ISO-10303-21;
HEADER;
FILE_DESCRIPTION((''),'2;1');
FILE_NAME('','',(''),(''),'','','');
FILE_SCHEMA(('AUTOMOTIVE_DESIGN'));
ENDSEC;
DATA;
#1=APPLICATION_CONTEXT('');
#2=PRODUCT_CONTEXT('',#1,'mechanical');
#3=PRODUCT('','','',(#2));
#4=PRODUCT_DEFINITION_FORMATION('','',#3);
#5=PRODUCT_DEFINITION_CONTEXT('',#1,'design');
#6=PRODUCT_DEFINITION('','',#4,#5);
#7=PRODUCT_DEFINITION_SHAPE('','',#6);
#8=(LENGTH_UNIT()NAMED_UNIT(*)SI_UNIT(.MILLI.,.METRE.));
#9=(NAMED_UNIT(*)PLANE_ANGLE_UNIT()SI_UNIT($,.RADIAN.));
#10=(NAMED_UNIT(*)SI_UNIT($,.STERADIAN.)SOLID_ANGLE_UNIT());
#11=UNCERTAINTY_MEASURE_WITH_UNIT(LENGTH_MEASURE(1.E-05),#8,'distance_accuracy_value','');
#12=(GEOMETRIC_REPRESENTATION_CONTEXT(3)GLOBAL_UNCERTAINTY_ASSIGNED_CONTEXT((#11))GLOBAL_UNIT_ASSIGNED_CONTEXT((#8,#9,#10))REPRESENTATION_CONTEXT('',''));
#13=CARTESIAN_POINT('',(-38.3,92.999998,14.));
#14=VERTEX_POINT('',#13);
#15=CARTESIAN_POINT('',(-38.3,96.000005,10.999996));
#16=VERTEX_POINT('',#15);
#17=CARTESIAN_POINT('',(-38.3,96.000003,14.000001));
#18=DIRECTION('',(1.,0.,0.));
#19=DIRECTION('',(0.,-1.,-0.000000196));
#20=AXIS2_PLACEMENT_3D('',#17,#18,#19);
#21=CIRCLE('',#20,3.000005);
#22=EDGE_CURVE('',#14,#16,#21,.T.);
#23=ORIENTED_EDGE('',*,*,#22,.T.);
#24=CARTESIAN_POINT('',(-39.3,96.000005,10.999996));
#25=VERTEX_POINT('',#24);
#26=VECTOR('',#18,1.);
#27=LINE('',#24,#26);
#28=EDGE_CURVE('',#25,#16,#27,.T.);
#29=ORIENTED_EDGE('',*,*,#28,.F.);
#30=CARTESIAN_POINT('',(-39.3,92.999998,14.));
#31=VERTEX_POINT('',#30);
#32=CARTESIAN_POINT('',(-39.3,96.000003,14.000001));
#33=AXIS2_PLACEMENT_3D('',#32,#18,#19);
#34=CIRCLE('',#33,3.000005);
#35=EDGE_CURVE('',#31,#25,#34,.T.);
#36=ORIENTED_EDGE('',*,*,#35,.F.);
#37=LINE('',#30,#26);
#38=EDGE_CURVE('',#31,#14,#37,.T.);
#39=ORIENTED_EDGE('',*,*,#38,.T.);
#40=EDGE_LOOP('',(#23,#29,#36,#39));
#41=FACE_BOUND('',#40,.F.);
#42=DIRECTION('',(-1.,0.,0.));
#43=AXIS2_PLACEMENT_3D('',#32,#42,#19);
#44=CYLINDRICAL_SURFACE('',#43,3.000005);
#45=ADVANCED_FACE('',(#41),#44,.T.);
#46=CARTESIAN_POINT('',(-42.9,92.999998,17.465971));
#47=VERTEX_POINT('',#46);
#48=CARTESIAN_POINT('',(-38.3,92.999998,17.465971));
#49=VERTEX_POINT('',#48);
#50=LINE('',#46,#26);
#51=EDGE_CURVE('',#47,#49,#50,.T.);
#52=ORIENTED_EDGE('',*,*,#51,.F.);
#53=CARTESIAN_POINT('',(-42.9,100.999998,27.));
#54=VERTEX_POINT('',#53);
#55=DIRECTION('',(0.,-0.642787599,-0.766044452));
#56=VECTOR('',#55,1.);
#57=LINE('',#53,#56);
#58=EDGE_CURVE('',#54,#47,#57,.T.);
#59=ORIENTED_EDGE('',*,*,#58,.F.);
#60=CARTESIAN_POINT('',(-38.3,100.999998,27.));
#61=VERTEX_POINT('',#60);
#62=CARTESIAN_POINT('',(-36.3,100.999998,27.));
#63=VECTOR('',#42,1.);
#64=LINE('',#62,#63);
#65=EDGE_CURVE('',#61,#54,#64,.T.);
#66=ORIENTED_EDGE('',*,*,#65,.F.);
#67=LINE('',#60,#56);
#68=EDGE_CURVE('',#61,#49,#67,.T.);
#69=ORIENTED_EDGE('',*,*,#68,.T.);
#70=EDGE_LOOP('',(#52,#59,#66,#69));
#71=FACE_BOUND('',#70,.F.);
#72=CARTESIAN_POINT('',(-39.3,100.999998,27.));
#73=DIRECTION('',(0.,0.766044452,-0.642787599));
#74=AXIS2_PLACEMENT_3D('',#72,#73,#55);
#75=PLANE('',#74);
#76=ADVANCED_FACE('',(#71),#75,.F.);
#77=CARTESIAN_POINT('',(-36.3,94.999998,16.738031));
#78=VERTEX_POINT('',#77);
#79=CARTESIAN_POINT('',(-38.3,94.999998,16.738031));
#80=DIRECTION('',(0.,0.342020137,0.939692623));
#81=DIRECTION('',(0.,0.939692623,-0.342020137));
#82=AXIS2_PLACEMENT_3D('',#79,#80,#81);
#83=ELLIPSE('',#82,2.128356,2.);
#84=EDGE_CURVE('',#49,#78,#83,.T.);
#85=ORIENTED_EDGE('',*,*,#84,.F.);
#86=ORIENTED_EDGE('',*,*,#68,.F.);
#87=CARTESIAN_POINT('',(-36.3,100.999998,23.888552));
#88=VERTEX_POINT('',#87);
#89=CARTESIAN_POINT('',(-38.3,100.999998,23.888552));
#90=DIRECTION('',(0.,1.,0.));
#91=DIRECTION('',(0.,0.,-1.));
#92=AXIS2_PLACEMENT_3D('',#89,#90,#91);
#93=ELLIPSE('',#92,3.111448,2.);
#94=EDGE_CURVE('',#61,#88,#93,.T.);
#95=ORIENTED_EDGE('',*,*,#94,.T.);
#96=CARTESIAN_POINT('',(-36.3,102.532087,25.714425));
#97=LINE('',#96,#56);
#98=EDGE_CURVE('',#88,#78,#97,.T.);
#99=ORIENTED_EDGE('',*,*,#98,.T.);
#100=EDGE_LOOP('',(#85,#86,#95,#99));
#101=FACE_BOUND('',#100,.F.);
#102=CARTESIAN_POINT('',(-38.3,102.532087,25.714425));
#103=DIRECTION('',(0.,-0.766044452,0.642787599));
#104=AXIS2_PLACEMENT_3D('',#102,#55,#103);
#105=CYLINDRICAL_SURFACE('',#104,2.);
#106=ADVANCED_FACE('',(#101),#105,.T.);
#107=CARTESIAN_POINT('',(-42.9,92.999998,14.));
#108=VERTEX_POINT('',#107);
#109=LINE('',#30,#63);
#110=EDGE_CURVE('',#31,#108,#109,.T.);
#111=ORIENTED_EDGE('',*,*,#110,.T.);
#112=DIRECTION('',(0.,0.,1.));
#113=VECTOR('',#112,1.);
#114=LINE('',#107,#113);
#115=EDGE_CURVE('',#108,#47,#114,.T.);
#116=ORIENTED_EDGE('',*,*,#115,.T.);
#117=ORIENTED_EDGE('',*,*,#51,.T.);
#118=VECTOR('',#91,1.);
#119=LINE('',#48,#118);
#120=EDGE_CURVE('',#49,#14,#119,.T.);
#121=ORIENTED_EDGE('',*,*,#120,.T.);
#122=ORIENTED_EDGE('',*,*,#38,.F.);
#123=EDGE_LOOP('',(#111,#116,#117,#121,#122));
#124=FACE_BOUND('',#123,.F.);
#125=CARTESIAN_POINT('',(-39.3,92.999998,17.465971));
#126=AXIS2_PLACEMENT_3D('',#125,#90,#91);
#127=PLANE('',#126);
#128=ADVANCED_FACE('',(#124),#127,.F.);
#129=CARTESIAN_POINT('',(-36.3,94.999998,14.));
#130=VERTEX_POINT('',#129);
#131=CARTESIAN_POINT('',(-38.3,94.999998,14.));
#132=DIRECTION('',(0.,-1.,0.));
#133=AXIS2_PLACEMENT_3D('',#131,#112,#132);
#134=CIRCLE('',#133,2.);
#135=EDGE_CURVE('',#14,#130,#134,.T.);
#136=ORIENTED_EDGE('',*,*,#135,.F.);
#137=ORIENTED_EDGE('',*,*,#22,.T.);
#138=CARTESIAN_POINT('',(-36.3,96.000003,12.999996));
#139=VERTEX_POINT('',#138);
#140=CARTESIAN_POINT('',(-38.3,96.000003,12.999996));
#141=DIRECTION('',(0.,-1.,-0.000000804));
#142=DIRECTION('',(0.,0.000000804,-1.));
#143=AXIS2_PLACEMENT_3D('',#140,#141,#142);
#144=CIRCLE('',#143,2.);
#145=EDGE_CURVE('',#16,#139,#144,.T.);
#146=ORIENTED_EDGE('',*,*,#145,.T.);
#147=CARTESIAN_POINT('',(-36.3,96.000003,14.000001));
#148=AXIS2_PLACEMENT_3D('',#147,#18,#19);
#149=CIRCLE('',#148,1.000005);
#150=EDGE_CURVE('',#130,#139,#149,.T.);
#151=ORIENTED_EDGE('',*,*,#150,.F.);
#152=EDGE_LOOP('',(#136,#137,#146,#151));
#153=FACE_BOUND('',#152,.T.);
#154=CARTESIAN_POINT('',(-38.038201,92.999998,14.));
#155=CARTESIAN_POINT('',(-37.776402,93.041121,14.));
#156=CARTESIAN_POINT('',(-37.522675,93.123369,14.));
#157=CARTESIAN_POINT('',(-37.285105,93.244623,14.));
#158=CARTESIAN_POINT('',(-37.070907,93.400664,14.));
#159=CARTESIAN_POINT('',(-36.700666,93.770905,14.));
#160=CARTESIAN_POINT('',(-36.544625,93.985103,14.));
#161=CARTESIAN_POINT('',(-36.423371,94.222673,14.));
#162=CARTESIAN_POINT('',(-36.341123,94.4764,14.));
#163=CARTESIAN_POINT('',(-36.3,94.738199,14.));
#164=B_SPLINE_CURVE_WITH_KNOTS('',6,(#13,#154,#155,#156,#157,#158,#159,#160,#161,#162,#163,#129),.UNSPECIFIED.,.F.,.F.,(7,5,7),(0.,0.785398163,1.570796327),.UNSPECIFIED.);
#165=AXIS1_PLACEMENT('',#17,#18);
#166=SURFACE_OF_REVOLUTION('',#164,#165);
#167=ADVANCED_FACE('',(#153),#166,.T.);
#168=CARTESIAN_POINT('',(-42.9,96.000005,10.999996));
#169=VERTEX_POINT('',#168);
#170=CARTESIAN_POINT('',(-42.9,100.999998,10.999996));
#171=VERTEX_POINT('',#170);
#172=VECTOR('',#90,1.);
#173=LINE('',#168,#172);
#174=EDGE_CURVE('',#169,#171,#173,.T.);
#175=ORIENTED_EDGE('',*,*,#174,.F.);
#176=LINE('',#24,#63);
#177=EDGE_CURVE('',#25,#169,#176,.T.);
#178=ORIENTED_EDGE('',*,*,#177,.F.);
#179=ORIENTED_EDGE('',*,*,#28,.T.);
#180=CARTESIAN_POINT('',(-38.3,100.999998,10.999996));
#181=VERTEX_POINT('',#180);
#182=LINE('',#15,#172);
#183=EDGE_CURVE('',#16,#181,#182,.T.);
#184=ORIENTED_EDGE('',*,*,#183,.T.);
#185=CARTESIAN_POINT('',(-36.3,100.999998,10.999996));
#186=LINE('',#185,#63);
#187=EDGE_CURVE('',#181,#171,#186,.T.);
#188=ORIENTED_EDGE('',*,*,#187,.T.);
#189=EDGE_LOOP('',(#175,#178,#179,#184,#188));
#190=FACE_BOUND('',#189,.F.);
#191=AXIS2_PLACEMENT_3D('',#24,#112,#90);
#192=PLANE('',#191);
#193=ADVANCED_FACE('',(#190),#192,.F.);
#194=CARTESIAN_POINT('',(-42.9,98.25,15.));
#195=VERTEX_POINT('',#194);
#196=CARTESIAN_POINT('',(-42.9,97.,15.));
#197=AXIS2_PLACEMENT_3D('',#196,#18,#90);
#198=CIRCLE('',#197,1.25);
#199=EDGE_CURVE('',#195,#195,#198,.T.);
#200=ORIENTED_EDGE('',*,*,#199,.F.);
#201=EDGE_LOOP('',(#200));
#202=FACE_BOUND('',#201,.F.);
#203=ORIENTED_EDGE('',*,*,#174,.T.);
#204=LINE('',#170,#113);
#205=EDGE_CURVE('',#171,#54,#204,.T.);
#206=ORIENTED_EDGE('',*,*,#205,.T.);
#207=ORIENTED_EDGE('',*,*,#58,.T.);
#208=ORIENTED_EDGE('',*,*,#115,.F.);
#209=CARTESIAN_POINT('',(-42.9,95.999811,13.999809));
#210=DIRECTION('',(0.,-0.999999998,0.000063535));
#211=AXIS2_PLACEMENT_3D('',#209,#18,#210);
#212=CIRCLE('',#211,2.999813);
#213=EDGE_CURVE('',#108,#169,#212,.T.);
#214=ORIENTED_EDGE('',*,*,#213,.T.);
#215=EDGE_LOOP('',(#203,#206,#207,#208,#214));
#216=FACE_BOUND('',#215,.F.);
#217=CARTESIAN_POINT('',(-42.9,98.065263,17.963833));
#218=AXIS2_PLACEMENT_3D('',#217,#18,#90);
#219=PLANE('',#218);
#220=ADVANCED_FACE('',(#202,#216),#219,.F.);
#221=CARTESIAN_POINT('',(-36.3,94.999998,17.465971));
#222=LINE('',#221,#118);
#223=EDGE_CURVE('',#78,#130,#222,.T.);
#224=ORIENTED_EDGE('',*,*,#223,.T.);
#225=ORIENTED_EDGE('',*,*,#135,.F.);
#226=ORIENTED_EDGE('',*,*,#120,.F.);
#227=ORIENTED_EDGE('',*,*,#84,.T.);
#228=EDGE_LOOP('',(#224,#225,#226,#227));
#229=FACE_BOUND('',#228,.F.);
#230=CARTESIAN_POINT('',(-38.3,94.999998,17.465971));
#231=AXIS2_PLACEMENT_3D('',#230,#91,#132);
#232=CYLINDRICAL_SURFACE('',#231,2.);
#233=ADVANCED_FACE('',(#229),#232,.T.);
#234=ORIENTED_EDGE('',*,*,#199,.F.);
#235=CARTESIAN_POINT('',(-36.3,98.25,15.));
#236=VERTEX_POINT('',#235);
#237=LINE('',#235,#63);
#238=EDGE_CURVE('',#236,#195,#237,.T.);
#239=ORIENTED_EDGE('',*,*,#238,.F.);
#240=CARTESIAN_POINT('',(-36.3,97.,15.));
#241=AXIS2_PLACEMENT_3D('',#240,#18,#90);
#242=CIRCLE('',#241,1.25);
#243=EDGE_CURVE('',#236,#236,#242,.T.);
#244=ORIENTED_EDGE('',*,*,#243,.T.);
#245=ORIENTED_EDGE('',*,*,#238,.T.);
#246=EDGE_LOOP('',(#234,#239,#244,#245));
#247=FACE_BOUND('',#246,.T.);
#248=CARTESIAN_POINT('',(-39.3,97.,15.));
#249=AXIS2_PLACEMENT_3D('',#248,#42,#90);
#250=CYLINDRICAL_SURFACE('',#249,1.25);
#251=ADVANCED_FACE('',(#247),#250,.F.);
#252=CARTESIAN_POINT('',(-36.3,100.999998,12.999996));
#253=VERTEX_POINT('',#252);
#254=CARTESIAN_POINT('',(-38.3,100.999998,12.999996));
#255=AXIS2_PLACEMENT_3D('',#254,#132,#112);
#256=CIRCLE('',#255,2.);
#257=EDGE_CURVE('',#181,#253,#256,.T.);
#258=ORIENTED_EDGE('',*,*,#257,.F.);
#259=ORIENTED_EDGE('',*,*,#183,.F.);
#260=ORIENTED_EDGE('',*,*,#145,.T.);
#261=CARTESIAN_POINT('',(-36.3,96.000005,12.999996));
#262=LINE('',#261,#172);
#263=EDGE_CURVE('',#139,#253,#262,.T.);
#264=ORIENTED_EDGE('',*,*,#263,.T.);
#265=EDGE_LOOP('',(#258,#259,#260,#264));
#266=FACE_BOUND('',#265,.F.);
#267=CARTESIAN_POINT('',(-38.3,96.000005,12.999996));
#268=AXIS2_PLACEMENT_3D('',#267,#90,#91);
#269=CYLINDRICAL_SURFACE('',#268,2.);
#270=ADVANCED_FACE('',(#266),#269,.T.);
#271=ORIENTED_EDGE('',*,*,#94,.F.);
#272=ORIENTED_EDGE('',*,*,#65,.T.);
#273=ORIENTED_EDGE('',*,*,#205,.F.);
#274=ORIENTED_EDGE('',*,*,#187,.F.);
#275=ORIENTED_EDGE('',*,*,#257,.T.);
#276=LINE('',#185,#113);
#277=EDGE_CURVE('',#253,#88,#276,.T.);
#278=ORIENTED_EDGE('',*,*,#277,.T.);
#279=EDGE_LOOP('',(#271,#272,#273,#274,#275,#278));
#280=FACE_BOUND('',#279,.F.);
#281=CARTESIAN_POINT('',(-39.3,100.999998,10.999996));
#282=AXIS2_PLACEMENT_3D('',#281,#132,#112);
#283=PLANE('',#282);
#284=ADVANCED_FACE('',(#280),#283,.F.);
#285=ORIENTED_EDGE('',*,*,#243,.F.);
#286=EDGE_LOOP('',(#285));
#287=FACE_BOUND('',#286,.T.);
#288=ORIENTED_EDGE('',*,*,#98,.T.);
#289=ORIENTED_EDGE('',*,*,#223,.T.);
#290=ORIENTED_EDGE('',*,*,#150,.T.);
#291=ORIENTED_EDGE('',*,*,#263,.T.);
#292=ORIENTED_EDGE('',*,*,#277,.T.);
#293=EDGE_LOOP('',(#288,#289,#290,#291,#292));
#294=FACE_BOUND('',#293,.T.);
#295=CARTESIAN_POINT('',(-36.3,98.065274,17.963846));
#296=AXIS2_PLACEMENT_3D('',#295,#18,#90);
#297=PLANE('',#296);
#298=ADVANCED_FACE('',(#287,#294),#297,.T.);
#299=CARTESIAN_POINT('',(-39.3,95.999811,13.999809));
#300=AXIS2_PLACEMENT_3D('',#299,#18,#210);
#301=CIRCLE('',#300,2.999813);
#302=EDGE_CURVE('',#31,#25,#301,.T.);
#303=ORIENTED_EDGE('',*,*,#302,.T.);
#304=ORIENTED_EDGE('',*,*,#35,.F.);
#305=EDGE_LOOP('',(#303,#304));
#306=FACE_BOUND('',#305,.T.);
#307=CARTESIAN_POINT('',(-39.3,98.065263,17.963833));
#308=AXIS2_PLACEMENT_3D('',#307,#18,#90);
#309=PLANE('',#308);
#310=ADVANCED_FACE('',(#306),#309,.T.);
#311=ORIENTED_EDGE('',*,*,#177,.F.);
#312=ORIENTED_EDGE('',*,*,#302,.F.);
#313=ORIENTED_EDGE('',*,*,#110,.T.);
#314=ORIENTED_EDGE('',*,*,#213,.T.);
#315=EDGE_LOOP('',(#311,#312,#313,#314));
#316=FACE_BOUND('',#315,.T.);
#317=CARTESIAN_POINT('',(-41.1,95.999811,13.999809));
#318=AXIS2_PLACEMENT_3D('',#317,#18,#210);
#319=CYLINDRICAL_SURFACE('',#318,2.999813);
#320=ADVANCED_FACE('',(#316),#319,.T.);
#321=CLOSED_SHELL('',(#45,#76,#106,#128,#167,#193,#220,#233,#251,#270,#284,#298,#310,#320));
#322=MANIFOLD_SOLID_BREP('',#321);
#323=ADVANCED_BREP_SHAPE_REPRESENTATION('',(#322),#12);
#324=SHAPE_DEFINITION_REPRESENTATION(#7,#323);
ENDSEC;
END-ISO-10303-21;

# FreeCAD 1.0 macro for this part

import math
import FreeCAD as App
import Part
import Sketcher
from FreeCAD import Vector
Q = App.Units.Quantity


def edges_at(feature, points):
    """Names of the edges that pass closest to the given points."""
    edges = feature.Shape.Edges
    near = lambda p: min(range(len(edges)), key=lambda i: edges[i].distToShape(Part.Vertex(*p))[0])
    return sorted({f"Edge{near(p) + 1}" for p in points})

doc = App.newDocument("Part")
params = doc.addObject("Spreadsheet::Sheet", "Params")
for row, (alias, value) in enumerate([
    ("sketch1_diameter", "2.5 mm"),
    ("pad1_length", "3.6 mm"),
    ("sketch2_diameter", "2.5 mm"),
    ("pad2_length", "3 mm"),
    ("fillet_radius", "2 mm"),
], start=1):
    params.set(f"A{row}", alias)
    params.set(f"B{row}", "=" + value)
    params.setAlias(f"B{row}", alias)

body = doc.addObject("PartDesign::Body", "Body")

# Sketch on YZ plane
sketch1 = doc.addObject("Sketcher::SketchObject", "Sketch")
body.addObject(sketch1)
sketch1.AttachmentSupport = (doc.YZ_Plane, [""])
sketch1.MapMode = "FlatFace"
sketch1.AttachmentOffset = App.Placement(Vector(0, 0, -41.1), App.Rotation())
sketch1.addGeometry(Part.LineSegment(Vector(96.000005, 10.999996, 0), Vector(100.999998, 10.999996, 0)), False)
sketch1.addGeometry(Part.LineSegment(Vector(100.999998, 10.999996, 0), Vector(100.999998, 27, 0)), False)
sketch1.addGeometry(Part.LineSegment(Vector(100.999998, 27, 0), Vector(92.999998, 17.465971, 0)), False)
sketch1.addGeometry(Part.LineSegment(Vector(92.999998, 17.465971, 0), Vector(92.999998, 14, 0)), False)
sketch1.addGeometry(Part.ArcOfCircle(Part.Circle(Vector(95.999811, 13.999809, 0), Vector(0, 0, 1), 2.999813), math.radians(179.99636), math.radians(270.003698)), False)
sketch1.addGeometry(Part.Circle(Vector(97, 15, 0), Vector(0, 0, 1), 1.25), False)
sketch1.addConstraint(Sketcher.Constraint("Coincident", 0, 2, 1, 1))
sketch1.addConstraint(Sketcher.Constraint("Coincident", 1, 2, 2, 1))
sketch1.addConstraint(Sketcher.Constraint("Coincident", 2, 2, 3, 1))
sketch1.addConstraint(Sketcher.Constraint("Coincident", 3, 2, 4, 1))
sketch1.addConstraint(Sketcher.Constraint("Coincident", 4, 2, 0, 1))
sketch1.addConstraint(Sketcher.Constraint("Horizontal", 0))
sketch1.addConstraint(Sketcher.Constraint("Vertical", 1))
sketch1.addConstraint(Sketcher.Constraint("Vertical", 3))
sketch1.addConstraint(Sketcher.Constraint("Diameter", 5, 2.5))
sketch1.addConstraint(Sketcher.Constraint("Angle", 2, Q("-129.999999 deg")))
sketch1.addConstraint(Sketcher.Constraint("DistanceX", -1, 1, 5, 3, 97.0))
sketch1.addConstraint(Sketcher.Constraint("DistanceY", -1, 1, 5, 3, 15.0))
sketch1.addConstraint(Sketcher.Constraint("DistanceX", -1, 1, 0, 2, 100.999998))
sketch1.addConstraint(Sketcher.Constraint("DistanceY", -1, 1, 1, 2, 27.0))
sketch1.addConstraint(Sketcher.Constraint("DistanceX", -1, 1, 2, 2, 92.999998))
sketch1.addConstraint(Sketcher.Constraint("DistanceY", -1, 1, 3, 2, 14.0))
sketch1.addConstraint(Sketcher.Constraint("Radius", 4, 2.999813))
sketch1.addConstraint(Sketcher.Constraint("DistanceX", 0, 1, 0, 2, 4.999993))
sketch1.addConstraint(Sketcher.Constraint("DistanceY", 1, 1, 1, 2, 16.000004))
sketch1.setExpression("Constraints[8]", "Params.sketch1_diameter")
pad1 = doc.addObject("PartDesign::Pad", "Pad")
body.addObject(pad1)
pad1.Profile = sketch1
pad1.setExpression("Length", "Params.pad1_length")
pad1.Midplane = True

# Sketch on YZ plane
sketch2 = doc.addObject("Sketcher::SketchObject", "Sketch001")
body.addObject(sketch2)
sketch2.AttachmentSupport = (doc.YZ_Plane, [""])
sketch2.MapMode = "FlatFace"
sketch2.AttachmentOffset = App.Placement(Vector(0, 0, -39.3), App.Rotation())
sketch2.addGeometry(Part.LineSegment(Vector(100.999998, 27, 0), Vector(92.999998, 17.465971, 0)), False)
sketch2.addGeometry(Part.LineSegment(Vector(92.999998, 17.465971, 0), Vector(92.999998, 14, 0)), False)
sketch2.addGeometry(Part.ArcOfCircle(Part.Circle(Vector(96.000003, 14.000001, 0), Vector(0, 0, 1), 3.000005), math.radians(-179.999989), math.radians(-89.999954)), False)
sketch2.addGeometry(Part.LineSegment(Vector(96.000005, 10.999996, 0), Vector(100.999998, 10.999996, 0)), False)
sketch2.addGeometry(Part.LineSegment(Vector(100.999998, 10.999996, 0), Vector(100.999998, 27, 0)), False)
sketch2.addGeometry(Part.Circle(Vector(97, 15, 0), Vector(0, 0, 1), 1.25), False)
sketch2.addConstraint(Sketcher.Constraint("Coincident", 0, 2, 1, 1))
sketch2.addConstraint(Sketcher.Constraint("Tangent", 1, 2, 2, 1))
sketch2.addConstraint(Sketcher.Constraint("Tangent", 2, 2, 3, 1))
sketch2.addConstraint(Sketcher.Constraint("Coincident", 3, 2, 4, 1))
sketch2.addConstraint(Sketcher.Constraint("Coincident", 4, 2, 0, 1))
sketch2.addConstraint(Sketcher.Constraint("Vertical", 1))
sketch2.addConstraint(Sketcher.Constraint("Horizontal", 3))
sketch2.addConstraint(Sketcher.Constraint("Vertical", 4))
sketch2.addConstraint(Sketcher.Constraint("Diameter", 5, 2.5))
sketch2.addConstraint(Sketcher.Constraint("Angle", 0, Q("-129.999999 deg")))
sketch2.addConstraint(Sketcher.Constraint("DistanceY", -1, 1, 2, 3, 14.000001))
sketch2.addConstraint(Sketcher.Constraint("DistanceX", -1, 1, 5, 3, 97.0))
sketch2.addConstraint(Sketcher.Constraint("DistanceY", -1, 1, 5, 3, 15.0))
sketch2.addConstraint(Sketcher.Constraint("DistanceX", -1, 1, 0, 2, 92.999998))
sketch2.addConstraint(Sketcher.Constraint("DistanceX", -1, 1, 3, 2, 100.999998))
sketch2.addConstraint(Sketcher.Constraint("DistanceY", -1, 1, 4, 2, 27.0))
sketch2.addConstraint(Sketcher.Constraint("Radius", 2, 3.000005))
sketch2.setExpression("Constraints[8]", "Params.sketch2_diameter")
pad2 = doc.addObject("PartDesign::Pad", "Pad001")
body.addObject(pad2)
pad2.Profile = sketch2
pad2.setExpression("Length", "Params.pad2_length")
doc.recompute()

fillet = doc.addObject("PartDesign::Fillet", "Fillet")
body.addObject(fillet)
fillet.Base = (pad2, edges_at(pad2, [
    (-36.3, 98.5, 11),
    (-36.3, 93.879, 11.879),
    (-36.3, 93, 15.733),
    (-36.3, 97, 22.233),
]))
fillet.setExpression("Radius", "Params.fillet_radius")

doc.recompute()
